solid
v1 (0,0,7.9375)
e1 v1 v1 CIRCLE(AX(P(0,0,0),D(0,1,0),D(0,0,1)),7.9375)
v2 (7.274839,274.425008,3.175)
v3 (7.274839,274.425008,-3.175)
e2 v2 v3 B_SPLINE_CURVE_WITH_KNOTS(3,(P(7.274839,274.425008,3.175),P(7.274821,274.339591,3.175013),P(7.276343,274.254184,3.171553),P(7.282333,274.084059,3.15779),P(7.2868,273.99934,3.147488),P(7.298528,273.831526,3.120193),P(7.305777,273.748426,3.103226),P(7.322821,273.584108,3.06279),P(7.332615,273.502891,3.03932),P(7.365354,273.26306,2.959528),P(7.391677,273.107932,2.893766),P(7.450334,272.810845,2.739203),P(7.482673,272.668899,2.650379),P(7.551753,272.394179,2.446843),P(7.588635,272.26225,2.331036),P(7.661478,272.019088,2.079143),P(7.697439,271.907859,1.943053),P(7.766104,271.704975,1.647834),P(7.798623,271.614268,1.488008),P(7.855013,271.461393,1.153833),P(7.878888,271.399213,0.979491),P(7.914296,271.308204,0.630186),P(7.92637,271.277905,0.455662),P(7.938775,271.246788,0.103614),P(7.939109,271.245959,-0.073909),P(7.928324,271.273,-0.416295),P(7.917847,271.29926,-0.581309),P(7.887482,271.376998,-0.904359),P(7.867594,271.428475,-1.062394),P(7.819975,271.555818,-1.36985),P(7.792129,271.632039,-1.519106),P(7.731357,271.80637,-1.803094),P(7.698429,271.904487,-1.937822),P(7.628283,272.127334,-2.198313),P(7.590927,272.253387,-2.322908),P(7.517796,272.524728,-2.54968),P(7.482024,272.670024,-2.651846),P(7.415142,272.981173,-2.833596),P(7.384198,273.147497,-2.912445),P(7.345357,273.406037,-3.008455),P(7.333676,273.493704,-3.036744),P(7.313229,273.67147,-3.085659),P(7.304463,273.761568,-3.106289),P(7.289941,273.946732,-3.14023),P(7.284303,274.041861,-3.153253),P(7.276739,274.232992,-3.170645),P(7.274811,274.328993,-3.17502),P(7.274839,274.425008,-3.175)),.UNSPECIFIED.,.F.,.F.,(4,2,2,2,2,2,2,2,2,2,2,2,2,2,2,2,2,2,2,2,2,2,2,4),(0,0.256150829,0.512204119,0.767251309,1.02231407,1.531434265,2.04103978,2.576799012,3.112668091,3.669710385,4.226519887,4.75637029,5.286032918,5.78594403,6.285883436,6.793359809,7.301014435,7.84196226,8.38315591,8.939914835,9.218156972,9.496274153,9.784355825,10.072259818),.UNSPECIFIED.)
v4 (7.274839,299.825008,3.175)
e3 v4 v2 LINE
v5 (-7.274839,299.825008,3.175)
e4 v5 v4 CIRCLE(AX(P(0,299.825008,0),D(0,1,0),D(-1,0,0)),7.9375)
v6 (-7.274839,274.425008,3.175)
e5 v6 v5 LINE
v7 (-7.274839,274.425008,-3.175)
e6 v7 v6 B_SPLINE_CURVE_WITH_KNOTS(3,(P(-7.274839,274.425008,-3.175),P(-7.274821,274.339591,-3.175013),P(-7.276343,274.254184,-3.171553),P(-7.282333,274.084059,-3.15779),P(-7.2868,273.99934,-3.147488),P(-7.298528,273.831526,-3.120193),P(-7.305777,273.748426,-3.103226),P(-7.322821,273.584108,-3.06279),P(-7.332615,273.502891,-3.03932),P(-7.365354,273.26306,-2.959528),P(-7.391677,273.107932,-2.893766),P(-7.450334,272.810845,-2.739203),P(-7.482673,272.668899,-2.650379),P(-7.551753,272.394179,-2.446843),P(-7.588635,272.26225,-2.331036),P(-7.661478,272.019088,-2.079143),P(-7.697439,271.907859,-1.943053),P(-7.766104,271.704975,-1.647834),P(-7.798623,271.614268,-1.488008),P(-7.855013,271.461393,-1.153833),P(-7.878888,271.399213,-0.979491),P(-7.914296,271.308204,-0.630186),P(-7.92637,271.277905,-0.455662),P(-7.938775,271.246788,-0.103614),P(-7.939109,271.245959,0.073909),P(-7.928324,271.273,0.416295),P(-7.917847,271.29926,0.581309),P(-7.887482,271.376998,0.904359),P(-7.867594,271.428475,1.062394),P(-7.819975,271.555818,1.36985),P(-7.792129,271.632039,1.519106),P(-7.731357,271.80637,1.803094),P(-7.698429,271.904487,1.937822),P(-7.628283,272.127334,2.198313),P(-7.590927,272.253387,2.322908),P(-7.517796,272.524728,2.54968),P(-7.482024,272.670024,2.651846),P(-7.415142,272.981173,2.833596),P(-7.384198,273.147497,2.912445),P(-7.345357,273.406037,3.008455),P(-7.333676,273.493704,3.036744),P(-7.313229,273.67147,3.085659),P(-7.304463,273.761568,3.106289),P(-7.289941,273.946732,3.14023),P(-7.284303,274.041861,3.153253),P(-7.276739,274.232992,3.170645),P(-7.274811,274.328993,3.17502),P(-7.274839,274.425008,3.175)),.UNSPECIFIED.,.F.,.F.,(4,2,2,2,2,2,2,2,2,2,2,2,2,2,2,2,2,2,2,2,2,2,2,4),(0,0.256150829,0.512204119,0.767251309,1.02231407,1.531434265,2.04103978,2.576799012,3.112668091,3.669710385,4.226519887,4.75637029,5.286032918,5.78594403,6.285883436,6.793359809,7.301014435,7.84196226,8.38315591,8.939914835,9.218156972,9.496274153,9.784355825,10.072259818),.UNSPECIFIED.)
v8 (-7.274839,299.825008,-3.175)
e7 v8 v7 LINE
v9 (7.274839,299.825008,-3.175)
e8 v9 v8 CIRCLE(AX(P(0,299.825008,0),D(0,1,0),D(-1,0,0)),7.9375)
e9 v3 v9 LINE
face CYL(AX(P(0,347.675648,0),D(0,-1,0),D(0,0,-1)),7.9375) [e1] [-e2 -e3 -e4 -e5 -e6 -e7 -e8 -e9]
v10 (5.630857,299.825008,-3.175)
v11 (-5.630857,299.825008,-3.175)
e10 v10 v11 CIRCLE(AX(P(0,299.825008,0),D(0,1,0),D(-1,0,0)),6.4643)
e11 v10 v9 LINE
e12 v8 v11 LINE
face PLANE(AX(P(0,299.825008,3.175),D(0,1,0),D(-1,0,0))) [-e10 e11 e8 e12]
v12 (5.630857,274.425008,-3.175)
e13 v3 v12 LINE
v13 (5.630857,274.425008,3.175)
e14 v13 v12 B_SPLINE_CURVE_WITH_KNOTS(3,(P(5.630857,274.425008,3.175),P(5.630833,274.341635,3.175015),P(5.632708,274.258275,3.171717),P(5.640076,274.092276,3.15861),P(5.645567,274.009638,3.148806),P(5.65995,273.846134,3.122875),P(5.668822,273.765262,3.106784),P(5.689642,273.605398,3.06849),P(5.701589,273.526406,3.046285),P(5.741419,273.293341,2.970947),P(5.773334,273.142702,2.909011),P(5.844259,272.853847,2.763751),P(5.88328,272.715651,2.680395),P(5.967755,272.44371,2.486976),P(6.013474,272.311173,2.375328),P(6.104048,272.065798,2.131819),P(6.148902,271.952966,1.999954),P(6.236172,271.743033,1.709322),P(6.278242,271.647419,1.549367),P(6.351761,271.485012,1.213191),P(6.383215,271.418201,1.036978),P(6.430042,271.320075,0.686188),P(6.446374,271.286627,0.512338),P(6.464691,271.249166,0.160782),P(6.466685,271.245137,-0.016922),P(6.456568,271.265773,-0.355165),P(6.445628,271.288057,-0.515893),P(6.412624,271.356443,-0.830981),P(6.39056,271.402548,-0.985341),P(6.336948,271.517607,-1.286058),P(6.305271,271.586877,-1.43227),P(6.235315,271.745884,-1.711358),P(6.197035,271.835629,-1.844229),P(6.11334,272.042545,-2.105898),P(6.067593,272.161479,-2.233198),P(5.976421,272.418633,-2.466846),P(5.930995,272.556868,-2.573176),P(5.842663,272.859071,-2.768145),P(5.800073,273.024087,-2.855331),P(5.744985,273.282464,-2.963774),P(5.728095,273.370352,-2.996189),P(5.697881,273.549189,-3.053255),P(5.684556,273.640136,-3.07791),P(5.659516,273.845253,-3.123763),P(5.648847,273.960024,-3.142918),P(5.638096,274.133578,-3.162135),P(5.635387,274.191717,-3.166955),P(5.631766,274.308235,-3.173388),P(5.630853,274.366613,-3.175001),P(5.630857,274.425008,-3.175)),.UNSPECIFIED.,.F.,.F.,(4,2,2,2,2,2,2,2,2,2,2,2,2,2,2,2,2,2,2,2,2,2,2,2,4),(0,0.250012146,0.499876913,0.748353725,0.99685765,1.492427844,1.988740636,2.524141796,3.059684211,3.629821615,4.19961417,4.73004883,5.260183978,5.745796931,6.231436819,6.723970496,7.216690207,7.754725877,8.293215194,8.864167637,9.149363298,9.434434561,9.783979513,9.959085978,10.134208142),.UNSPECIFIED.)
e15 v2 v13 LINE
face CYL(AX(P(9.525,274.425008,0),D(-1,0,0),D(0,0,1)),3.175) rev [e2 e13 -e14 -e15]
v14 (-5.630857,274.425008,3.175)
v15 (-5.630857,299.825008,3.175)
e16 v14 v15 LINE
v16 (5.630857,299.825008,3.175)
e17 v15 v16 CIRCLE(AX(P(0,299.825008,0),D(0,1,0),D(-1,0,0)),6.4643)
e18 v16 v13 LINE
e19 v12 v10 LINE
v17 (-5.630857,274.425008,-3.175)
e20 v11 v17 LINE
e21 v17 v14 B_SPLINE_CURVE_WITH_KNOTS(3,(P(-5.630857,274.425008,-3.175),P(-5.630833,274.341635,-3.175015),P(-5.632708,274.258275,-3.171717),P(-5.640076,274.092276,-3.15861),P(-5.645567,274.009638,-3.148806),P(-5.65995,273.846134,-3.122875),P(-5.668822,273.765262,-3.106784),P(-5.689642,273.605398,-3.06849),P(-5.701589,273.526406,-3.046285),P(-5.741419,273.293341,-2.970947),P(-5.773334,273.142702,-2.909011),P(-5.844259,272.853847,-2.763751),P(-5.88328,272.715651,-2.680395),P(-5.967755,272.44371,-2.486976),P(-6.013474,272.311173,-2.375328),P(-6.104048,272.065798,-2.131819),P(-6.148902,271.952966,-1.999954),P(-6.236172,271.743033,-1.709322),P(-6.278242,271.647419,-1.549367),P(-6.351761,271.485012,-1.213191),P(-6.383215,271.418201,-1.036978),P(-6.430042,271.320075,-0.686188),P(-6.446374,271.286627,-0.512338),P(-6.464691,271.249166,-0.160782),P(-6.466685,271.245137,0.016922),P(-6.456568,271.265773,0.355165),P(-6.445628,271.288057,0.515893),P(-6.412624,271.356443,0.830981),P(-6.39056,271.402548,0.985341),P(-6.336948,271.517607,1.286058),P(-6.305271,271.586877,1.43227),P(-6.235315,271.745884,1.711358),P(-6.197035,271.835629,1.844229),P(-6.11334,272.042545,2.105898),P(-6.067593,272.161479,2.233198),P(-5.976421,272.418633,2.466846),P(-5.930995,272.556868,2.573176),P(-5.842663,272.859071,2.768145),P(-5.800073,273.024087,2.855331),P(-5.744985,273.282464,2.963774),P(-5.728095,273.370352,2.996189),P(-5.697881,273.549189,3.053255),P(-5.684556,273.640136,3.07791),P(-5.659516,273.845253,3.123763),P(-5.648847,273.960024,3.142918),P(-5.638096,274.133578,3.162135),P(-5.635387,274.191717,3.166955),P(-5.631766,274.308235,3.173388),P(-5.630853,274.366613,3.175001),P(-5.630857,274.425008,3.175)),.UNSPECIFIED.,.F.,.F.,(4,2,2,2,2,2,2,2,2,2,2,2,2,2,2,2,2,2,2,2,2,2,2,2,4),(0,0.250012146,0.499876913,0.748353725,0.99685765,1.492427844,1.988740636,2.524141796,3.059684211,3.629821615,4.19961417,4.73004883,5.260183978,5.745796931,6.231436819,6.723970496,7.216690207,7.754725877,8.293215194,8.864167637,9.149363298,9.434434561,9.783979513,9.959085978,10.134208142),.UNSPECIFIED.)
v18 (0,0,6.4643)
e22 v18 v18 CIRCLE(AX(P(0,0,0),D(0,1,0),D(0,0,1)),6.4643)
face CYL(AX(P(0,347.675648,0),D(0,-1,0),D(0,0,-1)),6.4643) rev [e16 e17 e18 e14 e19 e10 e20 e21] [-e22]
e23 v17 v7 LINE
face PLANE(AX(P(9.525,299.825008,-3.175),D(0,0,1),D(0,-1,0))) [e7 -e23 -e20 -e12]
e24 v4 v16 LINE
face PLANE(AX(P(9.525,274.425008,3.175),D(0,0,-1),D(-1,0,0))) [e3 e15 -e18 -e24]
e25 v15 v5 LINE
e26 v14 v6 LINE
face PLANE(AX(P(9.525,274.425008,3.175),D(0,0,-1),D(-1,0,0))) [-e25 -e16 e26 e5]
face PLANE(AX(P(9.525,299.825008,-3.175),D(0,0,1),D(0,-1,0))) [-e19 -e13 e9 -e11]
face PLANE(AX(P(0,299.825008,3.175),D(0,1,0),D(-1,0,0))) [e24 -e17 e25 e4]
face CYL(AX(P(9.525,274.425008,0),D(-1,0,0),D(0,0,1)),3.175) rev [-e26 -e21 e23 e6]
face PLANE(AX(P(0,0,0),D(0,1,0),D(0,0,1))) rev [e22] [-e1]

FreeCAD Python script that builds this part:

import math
import FreeCAD as App
import Part
import Sketcher
Q = App.Units.Quantity

doc = App.newDocument("Part")
body = doc.addObject("PartDesign::Body", "Body")

# Sketch on XZ plane
sketch1 = body.newObject("Sketcher::SketchObject", "Sketch")
sketch1.AttachmentSupport = (doc.getObject("XZ_Plane"), [""])
sketch1.MapMode = "FlatFace"
sketch1.addGeometry([
    Part.Circle(App.Vector(0, 0, 0), App.Vector(0, 0, 1), 8),
    Part.Circle(App.Vector(0, 0, 0), App.Vector(0, 0, 1), 6),
], False)
sketch1.addConstraint([
    Sketcher.Constraint("Coincident", 0, 3, -1, 1),
    Sketcher.Constraint("Coincident", 1, 3, -1, 1),
    Sketcher.Constraint("Diameter", 0, Q("0.625 in")),
    Sketcher.Constraint("Diameter", 1, Q("0.509 in")),
])
pad1 = body.newObject("PartDesign::Pad", "Pad")
pad1.Profile = sketch1
pad1.Length = 299.825008
pad1.Reversed = True

# Sketch on YZ plane
sketch2 = body.newObject("Sketcher::SketchObject", "Sketch001")
sketch2.AttachmentSupport = (doc.getObject("YZ_Plane"), [""])
sketch2.MapMode = "FlatFace"
sketch2.addGeometry([
    Part.LineSegment(App.Vector(274.4, -3.2, 0), App.Vector(299.8, -3.2, 0)),
    Part.LineSegment(App.Vector(299.8, -3.2, 0), App.Vector(299.8, 3.2, 0)),
    Part.LineSegment(App.Vector(299.8, 3.2, 0), App.Vector(274.4, 3.2, 0)),
    Part.ArcOfCircle(Part.Circle(App.Vector(274.4, 0, 0), App.Vector(0, 0, 1), 3.2), math.radians(90), math.radians(270)),
], False)
sketch2.addConstraint([
    Sketcher.Constraint("Coincident", 0, 2, 1, 1),
    Sketcher.Constraint("Coincident", 1, 2, 2, 1),
    Sketcher.Constraint("Tangent", 2, 2, 3, 1),
    Sketcher.Constraint("Tangent", 3, 2, 0, 1),
    Sketcher.Constraint("Horizontal", 0),
    Sketcher.Constraint("Vertical", 1),
    Sketcher.Constraint("Horizontal", 2),
    Sketcher.Constraint("PointOnObject", 3, 3, -1),
    Sketcher.Constraint("DistanceX", 0, 1, 0, 2, Q("1 in")),
    Sketcher.Constraint("Radius", 3, Q("0.125 in")),
    Sketcher.Constraint("DistanceX", -1, 1, 3, 3, 274.425008),
])
pocket1 = body.newObject("PartDesign::Pocket", "Pocket")
pocket1.Profile = sketch2
pocket1.Type = "ThroughAll"
pocket1.Midplane = True

doc.recompute()
